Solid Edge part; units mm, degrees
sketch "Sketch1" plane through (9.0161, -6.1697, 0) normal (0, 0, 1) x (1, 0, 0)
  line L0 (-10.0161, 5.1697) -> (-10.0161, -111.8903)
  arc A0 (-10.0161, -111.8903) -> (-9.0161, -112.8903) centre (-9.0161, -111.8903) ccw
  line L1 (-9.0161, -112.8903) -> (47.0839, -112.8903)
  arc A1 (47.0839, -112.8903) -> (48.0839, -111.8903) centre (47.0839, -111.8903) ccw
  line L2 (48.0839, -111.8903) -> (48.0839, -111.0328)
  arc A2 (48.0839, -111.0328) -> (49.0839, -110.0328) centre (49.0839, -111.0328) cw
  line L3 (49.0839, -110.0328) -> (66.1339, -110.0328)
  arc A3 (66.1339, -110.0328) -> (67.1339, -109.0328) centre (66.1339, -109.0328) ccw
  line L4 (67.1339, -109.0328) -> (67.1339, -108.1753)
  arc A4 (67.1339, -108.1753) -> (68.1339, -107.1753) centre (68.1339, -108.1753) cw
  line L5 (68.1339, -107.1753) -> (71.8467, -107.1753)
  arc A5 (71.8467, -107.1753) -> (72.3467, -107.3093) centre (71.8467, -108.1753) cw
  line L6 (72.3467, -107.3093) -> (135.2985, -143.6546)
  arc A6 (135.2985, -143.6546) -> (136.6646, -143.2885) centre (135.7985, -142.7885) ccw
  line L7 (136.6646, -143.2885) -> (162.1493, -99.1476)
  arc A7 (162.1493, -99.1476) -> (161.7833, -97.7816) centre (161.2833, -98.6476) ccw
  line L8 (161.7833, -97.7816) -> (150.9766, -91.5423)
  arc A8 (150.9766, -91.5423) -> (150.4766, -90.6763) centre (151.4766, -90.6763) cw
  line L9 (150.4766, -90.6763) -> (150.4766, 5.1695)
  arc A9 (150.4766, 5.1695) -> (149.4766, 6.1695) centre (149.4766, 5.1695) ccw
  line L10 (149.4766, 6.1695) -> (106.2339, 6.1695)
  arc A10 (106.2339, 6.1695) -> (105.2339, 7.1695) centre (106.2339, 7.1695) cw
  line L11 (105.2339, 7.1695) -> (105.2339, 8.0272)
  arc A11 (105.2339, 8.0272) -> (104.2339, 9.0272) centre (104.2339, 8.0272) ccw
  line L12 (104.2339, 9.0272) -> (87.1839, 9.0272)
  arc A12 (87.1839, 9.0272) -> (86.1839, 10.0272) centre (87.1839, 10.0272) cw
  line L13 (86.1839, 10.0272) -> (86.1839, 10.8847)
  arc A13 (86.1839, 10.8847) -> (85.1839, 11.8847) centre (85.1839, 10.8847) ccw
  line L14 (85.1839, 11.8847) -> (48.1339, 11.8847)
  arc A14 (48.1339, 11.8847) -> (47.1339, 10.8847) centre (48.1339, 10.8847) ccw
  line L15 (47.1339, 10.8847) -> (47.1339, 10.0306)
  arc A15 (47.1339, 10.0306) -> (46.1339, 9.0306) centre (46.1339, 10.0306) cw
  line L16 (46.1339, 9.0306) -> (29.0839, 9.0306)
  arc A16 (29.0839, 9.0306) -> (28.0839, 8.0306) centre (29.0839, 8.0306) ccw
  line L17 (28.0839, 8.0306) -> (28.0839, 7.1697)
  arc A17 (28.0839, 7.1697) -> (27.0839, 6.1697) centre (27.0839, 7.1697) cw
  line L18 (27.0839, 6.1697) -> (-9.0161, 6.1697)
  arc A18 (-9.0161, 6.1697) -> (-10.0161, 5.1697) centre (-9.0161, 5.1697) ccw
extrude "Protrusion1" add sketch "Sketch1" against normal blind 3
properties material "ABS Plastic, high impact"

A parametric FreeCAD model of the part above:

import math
import FreeCAD as App
import Part
import Sketcher
Q = App.Units.Quantity

doc = App.newDocument("Part")
body = doc.addObject("PartDesign::Body", "Body")

# Sketch on XY plane
sketch1 = doc.addObject("Sketcher::SketchObject", "Sketch")
body.addObject(sketch1)
sketch1.AttachmentSupport = (doc.XY_Plane, [""])
sketch1.MapMode = "FlatFace"
sketch1.addGeometry([
    Part.ArcOfCircle(Part.Circle(App.Vector(0, -1, 0), App.Vector(0, 0, 1), 1), math.radians(90), math.radians(180)),  # 0
    Part.LineSegment(App.Vector(-1, -1, 0), App.Vector(-1, -118.1, 0)),  # 1
    Part.ArcOfCircle(Part.Circle(App.Vector(0, -118.1, 0), App.Vector(0, 0, 1), 1), math.radians(180), math.radians(270)),  # 2
    Part.LineSegment(App.Vector(0, -119.1, 0), App.Vector(56.1, -119.1, 0)),  # 3
    Part.ArcOfCircle(Part.Circle(App.Vector(56.1, -118.1, 0), App.Vector(0, 0, 1), 1), math.radians(-90), math.radians(0)),  # 4
    Part.LineSegment(App.Vector(57.1, -118.1, 0), App.Vector(57.1, -117.2, 0)),  # 5
    Part.ArcOfCircle(Part.Circle(App.Vector(58.1, -117.2, 0), App.Vector(0, 0, 1), 1), math.radians(90), math.radians(180)),  # 6
    Part.LineSegment(App.Vector(58.1, -116.2, 0), App.Vector(75.2, -116.2, 0)),  # 7
    Part.ArcOfCircle(Part.Circle(App.Vector(75.2, -115.2, 0), App.Vector(0, 0, 1), 1), math.radians(-90), math.radians(0)),  # 8
    Part.LineSegment(App.Vector(76.2, -115.2, 0), App.Vector(76.2, -114.3, 0)),  # 9
    Part.ArcOfCircle(Part.Circle(App.Vector(77.2, -114.3, 0), App.Vector(0, 0, 1), 1), math.radians(90), math.radians(180)),  # 10
    Part.LineSegment(App.Vector(77.2, -113.3, 0), App.Vector(80.9, -113.3, 0)),  # 11
    Part.ArcOfCircle(Part.Circle(App.Vector(80.9, -114.3, 0), App.Vector(0, 0, 1), 1), math.radians(60), math.radians(90)),  # 12
    Part.LineSegment(App.Vector(81.4, -113.5, 0), App.Vector(144.3, -149.8, 0)),  # 13
    Part.ArcOfCircle(Part.Circle(App.Vector(144.8, -149, 0), App.Vector(0, 0, 1), 1), math.radians(-120), math.radians(-30)),  # 14
    Part.LineSegment(App.Vector(145.7, -149.5, 0), App.Vector(171.2, -105.3, 0)),  # 15
    Part.ArcOfCircle(Part.Circle(App.Vector(170.3, -104.8, 0), App.Vector(0, 0, 1), 1), math.radians(-30), math.radians(60)),  # 16
    Part.LineSegment(App.Vector(170.8, -104, 0), App.Vector(160, -97.7, 0)),  # 17
    Part.ArcOfCircle(Part.Circle(App.Vector(160.5, -96.8, 0), App.Vector(0, 0, 1), 1), math.radians(180), math.radians(240)),  # 18
    Part.LineSegment(App.Vector(159.5, -96.8, 0), App.Vector(159.5, -1, 0)),  # 19
    Part.ArcOfCircle(Part.Circle(App.Vector(158.5, -1, 0), App.Vector(0, 0, 1), 1), math.radians(0), math.radians(90)),  # 20
    Part.LineSegment(App.Vector(158.5, 0, 0), App.Vector(115.2, 0, 0)),  # 21
    Part.ArcOfCircle(Part.Circle(App.Vector(115.2, 1, 0), App.Vector(0, 0, 1), 1), math.radians(180), math.radians(270)),  # 22
    Part.LineSegment(App.Vector(114.2, 1, 0), App.Vector(114.2, 1.9, 0)),  # 23
    Part.ArcOfCircle(Part.Circle(App.Vector(113.2, 1.9, 0), App.Vector(0, 0, 1), 1), math.radians(0), math.radians(90)),  # 24
    Part.LineSegment(App.Vector(113.2, 2.9, 0), App.Vector(96.2, 2.9, 0)),  # 25
    Part.ArcOfCircle(Part.Circle(App.Vector(96.2, 3.9, 0), App.Vector(0, 0, 1), 1), math.radians(180), math.radians(270)),  # 26
    Part.LineSegment(App.Vector(95.2, 3.9, 0), App.Vector(95.2, 4.7, 0)),  # 27
    Part.ArcOfCircle(Part.Circle(App.Vector(94.2, 4.7, 0), App.Vector(0, 0, 1), 1), math.radians(0), math.radians(90)),  # 28
    Part.LineSegment(App.Vector(94.2, 5.7, 0), App.Vector(57.1, 5.7, 0)),  # 29
    Part.ArcOfCircle(Part.Circle(App.Vector(57.1, 4.7, 0), App.Vector(0, 0, 1), 1), math.radians(90), math.radians(180)),  # 30
    Part.LineSegment(App.Vector(56.1, 4.7, 0), App.Vector(56.1, 3.9, 0)),  # 31
    Part.ArcOfCircle(Part.Circle(App.Vector(55.1, 3.9, 0), App.Vector(0, 0, 1), 1), math.radians(-90), math.radians(0)),  # 32
    Part.LineSegment(App.Vector(55.1, 2.9, 0), App.Vector(38.1, 2.9, 0)),  # 33
    Part.ArcOfCircle(Part.Circle(App.Vector(38.1, 1.9, 0), App.Vector(0, 0, 1), 1), math.radians(90), math.radians(180)),  # 34
    Part.LineSegment(App.Vector(37.1, 1.9, 0), App.Vector(37.1, 1, 0)),  # 35
    Part.ArcOfCircle(Part.Circle(App.Vector(36.1, 1, 0), App.Vector(0, 0, 1), 1), math.radians(-90), math.radians(0)),  # 36
    Part.LineSegment(App.Vector(36.1, 0, 0), App.Vector(0, 0, 0)),  # 37
], False)
sketch1.addConstraint([
    Sketcher.Constraint("Tangent", 0, 2, 1, 1),
    Sketcher.Constraint("Tangent", 1, 2, 2, 1),
    Sketcher.Constraint("Tangent", 2, 2, 3, 1),
    Sketcher.Constraint("Tangent", 3, 2, 4, 1),
    Sketcher.Constraint("Tangent", 4, 2, 5, 1),
    Sketcher.Constraint("Tangent", 5, 2, 6, 2),
    Sketcher.Constraint("Tangent", 6, 1, 7, 1),
    Sketcher.Constraint("Tangent", 7, 2, 8, 1),
    Sketcher.Constraint("Tangent", 8, 2, 9, 1),
    Sketcher.Constraint("Tangent", 9, 2, 10, 2),
    Sketcher.Constraint("Tangent", 10, 1, 11, 1),
    Sketcher.Constraint("Tangent", 11, 2, 12, 2),
    Sketcher.Constraint("Tangent", 12, 1, 13, 1),
    Sketcher.Constraint("Tangent", 13, 2, 14, 1),
    Sketcher.Constraint("Tangent", 14, 2, 15, 1),
    Sketcher.Constraint("Tangent", 15, 2, 16, 1),
    Sketcher.Constraint("Tangent", 16, 2, 17, 1),
    Sketcher.Constraint("Tangent", 17, 2, 18, 2),
    Sketcher.Constraint("Tangent", 18, 1, 19, 1),
    Sketcher.Constraint("Tangent", 19, 2, 20, 1),
    Sketcher.Constraint("Tangent", 20, 2, 21, 1),
    Sketcher.Constraint("Tangent", 21, 2, 22, 2),
    Sketcher.Constraint("Tangent", 22, 1, 23, 1),
    Sketcher.Constraint("Tangent", 23, 2, 24, 1),
    Sketcher.Constraint("Tangent", 24, 2, 25, 1),
    Sketcher.Constraint("Tangent", 25, 2, 26, 2),
    Sketcher.Constraint("Tangent", 26, 1, 27, 1),
    Sketcher.Constraint("Tangent", 27, 2, 28, 1),
    Sketcher.Constraint("Tangent", 28, 2, 29, 1),
    Sketcher.Constraint("Tangent", 29, 2, 30, 1),
    Sketcher.Constraint("Tangent", 30, 2, 31, 1),
    Sketcher.Constraint("Tangent", 31, 2, 32, 2),
    Sketcher.Constraint("Tangent", 32, 1, 33, 1),
    Sketcher.Constraint("Tangent", 33, 2, 34, 1),
    Sketcher.Constraint("Tangent", 34, 2, 35, 1),
    Sketcher.Constraint("Tangent", 35, 2, 36, 2),
    Sketcher.Constraint("Tangent", 36, 1, 37, 1),
    Sketcher.Constraint("Tangent", 37, 2, 0, 1),
    Sketcher.Constraint("Vertical", 1),
    Sketcher.Constraint("Horizontal", 3),
    Sketcher.Constraint("Vertical", 5),
    Sketcher.Constraint("Horizontal", 7),
    Sketcher.Constraint("Vertical", 9),
    Sketcher.Constraint("Horizontal", 11),
    Sketcher.Constraint("Vertical", 19),
    Sketcher.Constraint("Horizontal", 21),
    Sketcher.Constraint("Vertical", 23),
    Sketcher.Constraint("Horizontal", 25),
    Sketcher.Constraint("Vertical", 27),
    Sketcher.Constraint("Horizontal", 29),
    Sketcher.Constraint("Vertical", 31),
    Sketcher.Constraint("Horizontal", 33),
    Sketcher.Constraint("Vertical", 35),
    Sketcher.Constraint("Horizontal", 37),
    Sketcher.Constraint("Coincident", 37, 2, -1, 1),
    Sketcher.Constraint("Equal", 0, 2),
    Sketcher.Constraint("Equal", 2, 4),
    Sketcher.Constraint("Equal", 4, 6),
    Sketcher.Constraint("Equal", 6, 8),
    Sketcher.Constraint("Equal", 8, 10),
    Sketcher.Constraint("Equal", 10, 12),
    Sketcher.Constraint("Equal", 12, 14),
    Sketcher.Constraint("Equal", 14, 16),
    Sketcher.Constraint("Equal", 16, 18),
    Sketcher.Constraint("Equal", 18, 20),
    Sketcher.Constraint("Equal", 20, 22),
    Sketcher.Constraint("Equal", 22, 24),
    Sketcher.Constraint("Equal", 24, 26),
    Sketcher.Constraint("Equal", 26, 28),
    Sketcher.Constraint("Equal", 28, 30),
    Sketcher.Constraint("Equal", 30, 32),
    Sketcher.Constraint("Equal", 32, 34),
    Sketcher.Constraint("Equal", 34, 36),
    Sketcher.Constraint("PointOnObject", 20, 2, -1),
    Sketcher.Constraint("Perpendicular", 13, 15),
    Sketcher.Constraint("Perpendicular", 15, 17),
    Sketcher.Constraint("Equal", 7, 25),
    Sketcher.Constraint("Equal", 25, 33),
    Sketcher.Constraint("Equal", 5, 9),
    Sketcher.Constraint("Equal", 9, 23),
    Sketcher.Constraint("Equal", 23, 27),
    Sketcher.Constraint("Radius", 0, 1.0),
    Sketcher.Constraint("Angle", 13, Q("-30 deg")),
    Sketcher.Constraint("DistanceX", 3, 1, 3, 2, 56.1),
    Sketcher.Constraint("DistanceX", 37, 2, 37, 1, 36.1),
    Sketcher.Constraint("DistanceX", 7, 1, 7, 2, 17.05),
    Sketcher.Constraint("DistanceX", 29, 2, 29, 1, 37.05),
    Sketcher.Constraint("DistanceY", 1, 2, 1, 1, 117.06),
    Sketcher.Constraint("DistanceY", 31, 2, 31, 1, 0.854),
    Sketcher.Constraint("DistanceY", 35, 2, 35, 1, 0.861),
    Sketcher.Constraint("DistanceX", 12, 3, 18, 3, 79.63),
    Sketcher.Constraint("DistanceX", 11, 1, 11, 2, 3.7128),
    Sketcher.Constraint("DistanceY", 19, 1, 19, 2, 95.8458),
    Sketcher.Constraint("DistanceX", 14, 3, 18, 3, 15.678),
])
pad1 = doc.addObject("PartDesign::Pad", "Pad")
body.addObject(pad1)
pad1.Profile = sketch1
pad1.Length = 3
pad1.Reversed = True

doc.recompute()
